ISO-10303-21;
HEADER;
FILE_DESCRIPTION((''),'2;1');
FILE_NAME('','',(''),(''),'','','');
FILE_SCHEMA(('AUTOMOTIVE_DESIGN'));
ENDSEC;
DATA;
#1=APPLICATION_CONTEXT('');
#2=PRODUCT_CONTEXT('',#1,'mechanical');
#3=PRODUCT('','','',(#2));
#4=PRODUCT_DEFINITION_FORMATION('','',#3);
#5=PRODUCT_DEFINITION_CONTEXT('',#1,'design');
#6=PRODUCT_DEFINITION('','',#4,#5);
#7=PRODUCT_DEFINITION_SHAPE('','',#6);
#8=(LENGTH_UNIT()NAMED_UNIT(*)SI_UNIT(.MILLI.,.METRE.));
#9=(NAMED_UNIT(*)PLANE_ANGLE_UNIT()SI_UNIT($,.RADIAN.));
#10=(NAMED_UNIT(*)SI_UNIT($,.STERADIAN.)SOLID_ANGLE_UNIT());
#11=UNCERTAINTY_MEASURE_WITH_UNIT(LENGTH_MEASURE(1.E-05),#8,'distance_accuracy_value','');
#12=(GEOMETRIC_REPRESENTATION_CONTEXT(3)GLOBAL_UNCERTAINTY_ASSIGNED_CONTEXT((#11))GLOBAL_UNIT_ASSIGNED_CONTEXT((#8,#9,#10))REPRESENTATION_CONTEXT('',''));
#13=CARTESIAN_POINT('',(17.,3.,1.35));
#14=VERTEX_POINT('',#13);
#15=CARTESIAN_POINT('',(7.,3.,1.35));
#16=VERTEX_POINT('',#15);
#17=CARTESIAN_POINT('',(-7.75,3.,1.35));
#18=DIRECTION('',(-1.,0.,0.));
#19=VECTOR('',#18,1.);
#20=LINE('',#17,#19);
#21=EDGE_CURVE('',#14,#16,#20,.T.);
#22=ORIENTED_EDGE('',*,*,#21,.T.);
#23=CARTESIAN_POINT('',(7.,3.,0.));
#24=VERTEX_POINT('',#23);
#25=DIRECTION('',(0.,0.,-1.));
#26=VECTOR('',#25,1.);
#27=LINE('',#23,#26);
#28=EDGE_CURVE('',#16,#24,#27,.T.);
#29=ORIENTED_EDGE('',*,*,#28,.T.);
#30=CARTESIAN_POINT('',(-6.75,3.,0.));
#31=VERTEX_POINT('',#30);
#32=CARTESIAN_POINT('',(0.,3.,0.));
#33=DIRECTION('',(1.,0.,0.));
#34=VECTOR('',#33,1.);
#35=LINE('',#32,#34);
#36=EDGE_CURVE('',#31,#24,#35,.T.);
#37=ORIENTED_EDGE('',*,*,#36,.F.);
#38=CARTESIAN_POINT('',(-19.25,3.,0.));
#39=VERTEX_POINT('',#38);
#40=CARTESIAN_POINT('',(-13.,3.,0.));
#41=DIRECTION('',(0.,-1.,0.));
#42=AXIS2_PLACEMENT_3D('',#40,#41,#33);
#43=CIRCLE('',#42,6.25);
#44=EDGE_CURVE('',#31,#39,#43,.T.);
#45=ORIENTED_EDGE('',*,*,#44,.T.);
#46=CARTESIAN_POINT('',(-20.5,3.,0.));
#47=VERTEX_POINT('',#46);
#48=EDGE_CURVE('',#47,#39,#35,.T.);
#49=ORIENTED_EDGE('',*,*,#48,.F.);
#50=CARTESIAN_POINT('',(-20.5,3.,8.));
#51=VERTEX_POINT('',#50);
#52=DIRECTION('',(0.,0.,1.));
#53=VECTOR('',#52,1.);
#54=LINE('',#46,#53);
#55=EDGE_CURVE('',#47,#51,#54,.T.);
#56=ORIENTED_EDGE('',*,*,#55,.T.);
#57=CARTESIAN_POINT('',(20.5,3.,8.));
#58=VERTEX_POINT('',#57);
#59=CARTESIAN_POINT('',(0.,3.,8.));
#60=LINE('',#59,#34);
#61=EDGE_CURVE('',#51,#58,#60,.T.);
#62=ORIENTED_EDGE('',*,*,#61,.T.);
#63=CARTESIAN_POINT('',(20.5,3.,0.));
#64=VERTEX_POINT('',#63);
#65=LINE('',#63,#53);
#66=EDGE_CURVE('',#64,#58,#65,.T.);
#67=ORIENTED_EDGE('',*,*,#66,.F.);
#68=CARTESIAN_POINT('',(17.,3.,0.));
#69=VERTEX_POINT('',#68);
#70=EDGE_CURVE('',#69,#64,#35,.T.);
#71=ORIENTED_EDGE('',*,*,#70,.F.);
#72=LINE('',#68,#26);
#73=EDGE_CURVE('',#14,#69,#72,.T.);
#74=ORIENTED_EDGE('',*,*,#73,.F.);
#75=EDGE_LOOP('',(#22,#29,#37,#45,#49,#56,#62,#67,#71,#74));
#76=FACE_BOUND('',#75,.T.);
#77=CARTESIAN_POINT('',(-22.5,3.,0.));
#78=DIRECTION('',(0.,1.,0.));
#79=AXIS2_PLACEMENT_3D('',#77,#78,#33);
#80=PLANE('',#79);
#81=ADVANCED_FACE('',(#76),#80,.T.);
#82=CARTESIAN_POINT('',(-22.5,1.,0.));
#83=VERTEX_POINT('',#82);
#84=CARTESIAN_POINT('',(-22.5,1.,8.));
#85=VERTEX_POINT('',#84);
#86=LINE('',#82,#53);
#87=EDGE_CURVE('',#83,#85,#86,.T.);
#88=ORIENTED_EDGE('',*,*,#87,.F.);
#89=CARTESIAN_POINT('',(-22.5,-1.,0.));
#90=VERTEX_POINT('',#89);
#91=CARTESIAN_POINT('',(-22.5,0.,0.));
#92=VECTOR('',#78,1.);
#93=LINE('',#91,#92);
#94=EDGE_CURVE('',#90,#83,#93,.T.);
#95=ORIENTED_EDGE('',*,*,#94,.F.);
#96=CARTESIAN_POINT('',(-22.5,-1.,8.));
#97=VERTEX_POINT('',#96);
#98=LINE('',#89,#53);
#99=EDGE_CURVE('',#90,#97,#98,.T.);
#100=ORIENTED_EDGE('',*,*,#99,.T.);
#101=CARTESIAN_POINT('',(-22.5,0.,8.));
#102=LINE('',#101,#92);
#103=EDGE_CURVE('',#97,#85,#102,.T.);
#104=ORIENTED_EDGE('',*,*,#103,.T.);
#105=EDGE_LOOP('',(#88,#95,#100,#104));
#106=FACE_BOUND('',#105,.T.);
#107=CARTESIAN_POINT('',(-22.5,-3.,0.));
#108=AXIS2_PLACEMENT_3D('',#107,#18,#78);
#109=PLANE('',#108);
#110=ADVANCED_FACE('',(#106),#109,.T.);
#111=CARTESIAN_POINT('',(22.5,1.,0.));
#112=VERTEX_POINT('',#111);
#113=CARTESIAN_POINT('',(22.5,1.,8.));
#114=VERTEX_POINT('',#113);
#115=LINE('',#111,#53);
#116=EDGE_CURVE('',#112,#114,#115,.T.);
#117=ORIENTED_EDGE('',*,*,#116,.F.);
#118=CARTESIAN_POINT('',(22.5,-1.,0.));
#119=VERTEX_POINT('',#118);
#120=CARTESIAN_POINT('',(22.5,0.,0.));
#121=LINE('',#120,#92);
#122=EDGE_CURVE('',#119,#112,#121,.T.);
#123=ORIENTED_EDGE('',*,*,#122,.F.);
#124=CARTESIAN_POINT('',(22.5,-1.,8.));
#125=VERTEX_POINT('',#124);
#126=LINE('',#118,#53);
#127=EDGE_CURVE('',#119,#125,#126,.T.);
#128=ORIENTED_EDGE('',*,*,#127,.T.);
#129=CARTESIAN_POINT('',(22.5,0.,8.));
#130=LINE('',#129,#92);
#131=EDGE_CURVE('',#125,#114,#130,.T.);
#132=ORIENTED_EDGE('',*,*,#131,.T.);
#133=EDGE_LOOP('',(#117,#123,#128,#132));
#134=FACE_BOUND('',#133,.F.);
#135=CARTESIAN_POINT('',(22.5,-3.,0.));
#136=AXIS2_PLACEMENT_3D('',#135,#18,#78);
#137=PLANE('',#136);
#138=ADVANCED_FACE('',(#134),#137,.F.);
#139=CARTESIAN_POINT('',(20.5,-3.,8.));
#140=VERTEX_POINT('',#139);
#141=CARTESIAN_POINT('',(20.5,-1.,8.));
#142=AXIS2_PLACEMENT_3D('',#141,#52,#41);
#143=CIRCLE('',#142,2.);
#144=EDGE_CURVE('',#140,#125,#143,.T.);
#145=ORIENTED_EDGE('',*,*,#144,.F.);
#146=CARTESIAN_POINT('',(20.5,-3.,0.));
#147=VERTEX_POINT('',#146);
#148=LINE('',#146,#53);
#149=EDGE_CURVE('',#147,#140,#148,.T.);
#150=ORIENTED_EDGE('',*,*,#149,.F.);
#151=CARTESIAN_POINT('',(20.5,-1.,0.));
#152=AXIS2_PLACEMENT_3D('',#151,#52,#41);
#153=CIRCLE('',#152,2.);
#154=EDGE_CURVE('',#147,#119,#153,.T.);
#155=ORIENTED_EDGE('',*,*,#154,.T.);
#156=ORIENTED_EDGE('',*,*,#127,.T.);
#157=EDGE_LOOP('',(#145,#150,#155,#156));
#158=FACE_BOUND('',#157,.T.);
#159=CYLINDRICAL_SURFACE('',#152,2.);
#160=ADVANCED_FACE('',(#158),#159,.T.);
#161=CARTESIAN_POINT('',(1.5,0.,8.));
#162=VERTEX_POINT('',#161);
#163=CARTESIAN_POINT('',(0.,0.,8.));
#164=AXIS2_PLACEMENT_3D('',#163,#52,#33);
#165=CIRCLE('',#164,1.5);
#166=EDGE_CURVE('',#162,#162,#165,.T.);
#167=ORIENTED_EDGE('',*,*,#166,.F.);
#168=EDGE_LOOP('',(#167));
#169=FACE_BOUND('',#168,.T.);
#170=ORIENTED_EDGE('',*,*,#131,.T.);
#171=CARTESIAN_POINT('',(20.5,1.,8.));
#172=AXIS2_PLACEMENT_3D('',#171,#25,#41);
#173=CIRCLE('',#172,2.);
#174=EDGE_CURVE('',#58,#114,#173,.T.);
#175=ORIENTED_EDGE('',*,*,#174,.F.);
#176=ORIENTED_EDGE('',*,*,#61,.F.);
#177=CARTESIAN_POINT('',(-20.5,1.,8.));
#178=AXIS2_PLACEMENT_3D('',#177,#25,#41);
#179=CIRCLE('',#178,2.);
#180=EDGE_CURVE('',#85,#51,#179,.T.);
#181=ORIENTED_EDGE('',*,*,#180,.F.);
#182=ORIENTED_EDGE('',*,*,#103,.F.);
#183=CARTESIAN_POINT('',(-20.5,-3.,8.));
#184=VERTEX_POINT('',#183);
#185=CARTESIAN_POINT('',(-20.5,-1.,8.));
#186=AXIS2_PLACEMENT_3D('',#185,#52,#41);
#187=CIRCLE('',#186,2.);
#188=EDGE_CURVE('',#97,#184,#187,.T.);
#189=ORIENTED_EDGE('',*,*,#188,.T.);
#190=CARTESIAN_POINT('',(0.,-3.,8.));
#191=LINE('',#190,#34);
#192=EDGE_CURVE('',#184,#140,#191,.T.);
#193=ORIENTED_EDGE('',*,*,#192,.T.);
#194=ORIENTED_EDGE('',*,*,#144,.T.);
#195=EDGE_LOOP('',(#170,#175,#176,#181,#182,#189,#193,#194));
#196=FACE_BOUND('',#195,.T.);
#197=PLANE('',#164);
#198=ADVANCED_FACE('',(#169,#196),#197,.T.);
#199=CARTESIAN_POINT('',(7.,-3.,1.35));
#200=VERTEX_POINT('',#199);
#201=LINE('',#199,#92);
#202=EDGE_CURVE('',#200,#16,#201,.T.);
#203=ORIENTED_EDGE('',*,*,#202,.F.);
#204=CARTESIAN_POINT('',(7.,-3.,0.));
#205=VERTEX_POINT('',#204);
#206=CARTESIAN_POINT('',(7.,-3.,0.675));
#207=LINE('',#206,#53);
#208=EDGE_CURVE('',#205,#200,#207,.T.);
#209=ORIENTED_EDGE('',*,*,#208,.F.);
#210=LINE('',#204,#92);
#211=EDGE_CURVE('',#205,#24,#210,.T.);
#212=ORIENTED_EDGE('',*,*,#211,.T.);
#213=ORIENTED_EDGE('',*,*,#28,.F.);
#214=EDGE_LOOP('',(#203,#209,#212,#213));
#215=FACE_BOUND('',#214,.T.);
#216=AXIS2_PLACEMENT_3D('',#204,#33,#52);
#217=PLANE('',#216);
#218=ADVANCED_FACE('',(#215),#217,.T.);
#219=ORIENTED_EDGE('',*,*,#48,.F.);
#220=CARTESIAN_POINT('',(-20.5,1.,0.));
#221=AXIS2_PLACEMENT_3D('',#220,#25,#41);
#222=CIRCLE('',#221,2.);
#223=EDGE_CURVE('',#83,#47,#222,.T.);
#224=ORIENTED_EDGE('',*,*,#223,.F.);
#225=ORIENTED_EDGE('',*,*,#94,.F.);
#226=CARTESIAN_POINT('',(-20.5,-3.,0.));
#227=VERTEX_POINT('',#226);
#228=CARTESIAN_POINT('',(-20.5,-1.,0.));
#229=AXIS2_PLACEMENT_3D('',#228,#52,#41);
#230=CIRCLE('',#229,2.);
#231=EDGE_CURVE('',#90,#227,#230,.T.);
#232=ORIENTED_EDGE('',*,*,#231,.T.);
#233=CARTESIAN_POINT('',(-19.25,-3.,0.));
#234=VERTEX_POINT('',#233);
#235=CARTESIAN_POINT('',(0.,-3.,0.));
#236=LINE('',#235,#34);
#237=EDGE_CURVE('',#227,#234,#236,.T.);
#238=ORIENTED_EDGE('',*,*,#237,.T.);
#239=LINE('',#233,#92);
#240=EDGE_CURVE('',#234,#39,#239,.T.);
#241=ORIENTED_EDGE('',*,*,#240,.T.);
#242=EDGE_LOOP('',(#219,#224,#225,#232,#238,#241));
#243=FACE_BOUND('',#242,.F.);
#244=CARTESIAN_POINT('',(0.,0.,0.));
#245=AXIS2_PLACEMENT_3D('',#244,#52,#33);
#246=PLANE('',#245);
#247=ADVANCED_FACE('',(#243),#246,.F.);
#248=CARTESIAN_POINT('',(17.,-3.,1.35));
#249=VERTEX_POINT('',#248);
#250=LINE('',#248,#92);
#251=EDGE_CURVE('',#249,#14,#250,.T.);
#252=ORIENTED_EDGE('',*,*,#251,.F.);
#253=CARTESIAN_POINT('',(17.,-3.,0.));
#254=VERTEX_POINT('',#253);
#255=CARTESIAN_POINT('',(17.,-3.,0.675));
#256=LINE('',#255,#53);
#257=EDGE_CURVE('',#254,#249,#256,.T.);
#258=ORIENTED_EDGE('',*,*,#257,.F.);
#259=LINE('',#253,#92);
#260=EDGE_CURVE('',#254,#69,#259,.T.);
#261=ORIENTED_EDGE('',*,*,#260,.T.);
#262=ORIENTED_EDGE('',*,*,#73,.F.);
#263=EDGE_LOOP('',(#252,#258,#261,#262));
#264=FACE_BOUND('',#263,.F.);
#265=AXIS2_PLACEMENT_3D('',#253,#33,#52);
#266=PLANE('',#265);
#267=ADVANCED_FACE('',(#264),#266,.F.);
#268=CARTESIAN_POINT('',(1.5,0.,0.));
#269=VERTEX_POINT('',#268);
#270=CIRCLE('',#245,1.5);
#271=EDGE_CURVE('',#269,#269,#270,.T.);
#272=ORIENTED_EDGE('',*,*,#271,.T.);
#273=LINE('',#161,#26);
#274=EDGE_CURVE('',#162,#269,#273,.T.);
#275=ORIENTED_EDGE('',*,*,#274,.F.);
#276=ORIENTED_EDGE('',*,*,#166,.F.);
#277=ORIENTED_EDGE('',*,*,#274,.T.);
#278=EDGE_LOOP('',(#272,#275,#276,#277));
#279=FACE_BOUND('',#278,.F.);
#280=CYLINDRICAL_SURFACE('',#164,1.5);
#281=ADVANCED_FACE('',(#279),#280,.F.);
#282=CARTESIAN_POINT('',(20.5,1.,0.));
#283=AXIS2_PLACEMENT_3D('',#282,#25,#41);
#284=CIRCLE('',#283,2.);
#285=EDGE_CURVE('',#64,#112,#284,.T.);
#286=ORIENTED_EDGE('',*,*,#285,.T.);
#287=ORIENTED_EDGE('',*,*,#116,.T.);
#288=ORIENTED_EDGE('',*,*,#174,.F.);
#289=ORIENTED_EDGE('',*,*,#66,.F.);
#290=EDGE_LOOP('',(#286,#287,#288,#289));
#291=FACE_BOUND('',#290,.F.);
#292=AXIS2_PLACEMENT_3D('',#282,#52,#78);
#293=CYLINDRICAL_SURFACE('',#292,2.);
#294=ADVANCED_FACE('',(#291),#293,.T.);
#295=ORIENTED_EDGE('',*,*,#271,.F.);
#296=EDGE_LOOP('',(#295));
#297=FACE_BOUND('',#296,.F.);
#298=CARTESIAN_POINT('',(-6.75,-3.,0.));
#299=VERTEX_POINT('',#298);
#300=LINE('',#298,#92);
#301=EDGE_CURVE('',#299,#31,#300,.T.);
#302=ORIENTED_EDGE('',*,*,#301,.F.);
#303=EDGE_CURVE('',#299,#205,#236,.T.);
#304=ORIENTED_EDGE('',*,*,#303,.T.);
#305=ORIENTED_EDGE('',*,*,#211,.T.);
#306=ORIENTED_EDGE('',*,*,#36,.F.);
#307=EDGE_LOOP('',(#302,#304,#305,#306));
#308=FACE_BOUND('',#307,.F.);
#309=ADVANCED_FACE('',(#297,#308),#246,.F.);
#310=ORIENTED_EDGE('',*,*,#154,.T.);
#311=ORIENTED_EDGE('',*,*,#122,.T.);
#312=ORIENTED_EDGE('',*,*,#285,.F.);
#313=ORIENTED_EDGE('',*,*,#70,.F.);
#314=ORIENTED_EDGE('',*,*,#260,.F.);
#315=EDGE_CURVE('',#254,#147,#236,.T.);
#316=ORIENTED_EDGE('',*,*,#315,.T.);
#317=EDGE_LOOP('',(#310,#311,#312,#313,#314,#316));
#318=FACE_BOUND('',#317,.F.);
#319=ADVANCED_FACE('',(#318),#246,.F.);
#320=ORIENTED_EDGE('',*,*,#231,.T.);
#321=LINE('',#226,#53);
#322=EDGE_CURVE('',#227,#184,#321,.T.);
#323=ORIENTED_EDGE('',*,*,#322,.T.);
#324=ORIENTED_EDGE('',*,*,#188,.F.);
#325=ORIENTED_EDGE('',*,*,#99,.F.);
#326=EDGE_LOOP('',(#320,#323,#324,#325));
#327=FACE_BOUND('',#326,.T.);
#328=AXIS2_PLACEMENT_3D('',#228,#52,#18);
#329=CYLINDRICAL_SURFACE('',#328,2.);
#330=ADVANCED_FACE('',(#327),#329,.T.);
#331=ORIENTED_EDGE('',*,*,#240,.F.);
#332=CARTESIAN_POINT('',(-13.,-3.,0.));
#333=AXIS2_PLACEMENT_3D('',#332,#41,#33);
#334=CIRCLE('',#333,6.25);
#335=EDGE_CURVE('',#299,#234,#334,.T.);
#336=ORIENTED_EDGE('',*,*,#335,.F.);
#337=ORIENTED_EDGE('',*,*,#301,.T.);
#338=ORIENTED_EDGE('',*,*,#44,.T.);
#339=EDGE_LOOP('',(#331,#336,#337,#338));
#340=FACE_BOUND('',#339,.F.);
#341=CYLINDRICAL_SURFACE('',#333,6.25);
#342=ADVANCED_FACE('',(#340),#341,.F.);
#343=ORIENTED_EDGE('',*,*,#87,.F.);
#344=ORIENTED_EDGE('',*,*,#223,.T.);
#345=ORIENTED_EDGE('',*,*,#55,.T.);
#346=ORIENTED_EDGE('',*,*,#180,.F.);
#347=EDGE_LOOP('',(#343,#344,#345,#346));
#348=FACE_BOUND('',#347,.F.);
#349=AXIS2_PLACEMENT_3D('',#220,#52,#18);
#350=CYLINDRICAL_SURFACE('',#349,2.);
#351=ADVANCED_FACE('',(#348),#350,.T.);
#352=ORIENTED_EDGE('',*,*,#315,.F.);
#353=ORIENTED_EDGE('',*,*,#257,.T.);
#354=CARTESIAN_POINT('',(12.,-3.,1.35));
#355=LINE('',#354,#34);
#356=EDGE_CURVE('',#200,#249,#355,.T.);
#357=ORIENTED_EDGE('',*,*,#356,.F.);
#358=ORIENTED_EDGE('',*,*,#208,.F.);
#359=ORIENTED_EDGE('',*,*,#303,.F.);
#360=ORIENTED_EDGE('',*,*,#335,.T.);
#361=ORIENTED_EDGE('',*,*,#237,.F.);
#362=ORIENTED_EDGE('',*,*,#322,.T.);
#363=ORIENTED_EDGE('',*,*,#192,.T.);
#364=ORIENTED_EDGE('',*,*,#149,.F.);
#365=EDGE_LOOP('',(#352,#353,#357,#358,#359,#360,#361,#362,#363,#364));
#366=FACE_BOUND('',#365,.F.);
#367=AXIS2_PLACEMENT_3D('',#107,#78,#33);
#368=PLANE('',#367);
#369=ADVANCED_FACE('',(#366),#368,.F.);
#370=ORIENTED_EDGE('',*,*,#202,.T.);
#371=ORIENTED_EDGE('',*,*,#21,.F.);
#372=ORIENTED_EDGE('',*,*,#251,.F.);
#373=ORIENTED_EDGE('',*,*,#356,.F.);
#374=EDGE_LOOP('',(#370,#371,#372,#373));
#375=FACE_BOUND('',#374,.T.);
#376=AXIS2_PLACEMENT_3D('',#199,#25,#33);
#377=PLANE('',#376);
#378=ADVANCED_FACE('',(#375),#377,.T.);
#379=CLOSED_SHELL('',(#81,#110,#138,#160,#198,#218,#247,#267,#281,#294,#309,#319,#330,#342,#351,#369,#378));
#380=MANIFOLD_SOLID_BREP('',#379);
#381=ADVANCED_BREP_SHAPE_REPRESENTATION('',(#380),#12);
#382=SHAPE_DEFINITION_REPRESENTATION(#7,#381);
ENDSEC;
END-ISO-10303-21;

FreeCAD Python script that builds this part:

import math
import FreeCAD as App
import Part
import Sketcher
from FreeCAD import Vector


def edges_at(feature, points):
    """Names of the edges that pass closest to the given points."""
    edges = feature.Shape.Edges
    near = lambda p: min(range(len(edges)), key=lambda i: edges[i].distToShape(Part.Vertex(*p))[0])
    return sorted({f"Edge{near(p) + 1}" for p in points})


def add_polygon(sketch, points):
    """Adds a closed chain of lines whose ends are joined by coincident constraints."""
    first, n = sketch.GeometryCount, len(points)
    for a, b in zip(points, points[1:] + points[:1]):
        sketch.addGeometry(Part.LineSegment(App.Vector(*a, 0), App.Vector(*b, 0)), False)
    for i in range(n):
        sketch.addConstraint(Sketcher.Constraint("Coincident", first + i, 2, first + (i + 1) % n, 1))

doc = App.newDocument("Part")
body = doc.addObject("PartDesign::Body", "Body")

# Sketch on XY plane
sketch1 = body.newObject("Sketcher::SketchObject", "Sketch")
sketch1.AttachmentSupport = (doc.getObject("XY_Plane"), [""])
sketch1.MapMode = "FlatFace"
add_polygon(sketch1, [(-22, 3), (-22, -3), (22, -3), (22, 3)])  # lines 0-3
sketch1.addConstraint([
    Sketcher.Constraint("Vertical", 0),
    Sketcher.Constraint("Horizontal", 1),
    Sketcher.Constraint("Vertical", 2),
    Sketcher.Constraint("Horizontal", 3),
    Sketcher.Constraint("Symmetric", 0, 2, 2, 2, -1, 1),
    Sketcher.Constraint("DistanceX", 1, 1, 1, 2, 45.0),
    Sketcher.Constraint("DistanceY", 0, 2, 0, 1, 6.0),
])
pad1 = body.newObject("PartDesign::Pad", "Pad")
pad1.Profile = sketch1
pad1.Length = 8

# Sketch on XZ plane
sketch2 = body.newObject("Sketcher::SketchObject", "Sketch001")
sketch2.AttachmentSupport = (doc.getObject("XZ_Plane"), [""])
sketch2.MapMode = "FlatFace"
sketch2.AttachmentOffset = App.Placement(Vector(0, 0, 3), App.Rotation())
sketch2.addGeometry(Part.LineSegment(Vector(-19.2, 0, 0), Vector(-6.8, 0, 0)), False)  # 0
sketch2.addGeometry(Part.ArcOfCircle(Part.Circle(Vector(-13, 0, 0), Vector(0, 0, 1), 6.2), math.radians(0), math.radians(180)), False)  # 1
add_polygon(sketch2, [(7, 1.4), (7, 0), (17, 0), (17, 1.4)])  # lines 2-5
sketch2.addConstraint([
    Sketcher.Constraint("Coincident", 0, 1, 1, 2),
    Sketcher.Constraint("Coincident", 1, 1, 0, 2),
    Sketcher.Constraint("Horizontal", 0),
    Sketcher.Constraint("Vertical", 2),
    Sketcher.Constraint("Horizontal", 3),
    Sketcher.Constraint("Vertical", 4),
    Sketcher.Constraint("Horizontal", 5),
    Sketcher.Constraint("PointOnObject", 1, 3, -1),
    Sketcher.Constraint("PointOnObject", 0, 1, -1),
    Sketcher.Constraint("PointOnObject", 2, 2, -1),
    Sketcher.Constraint("DistanceX", 3, 1, 3, 2, 10.0),
    Sketcher.Constraint("Radius", 1, 6.25),
    Sketcher.Constraint("DistanceX", 1, 3, -1, 1, 13.0),
    Sketcher.Constraint("DistanceX", -1, 1, 2, 2, 7.0),
    Sketcher.Constraint("DistanceY", 2, 2, 2, 1, 1.35),
])
pocket1 = body.newObject("PartDesign::Pocket", "Pocket")
pocket1.Profile = sketch2
pocket1.Type = "ThroughAll"

# Sketch on XY plane
sketch3 = body.newObject("Sketcher::SketchObject", "Sketch002")
sketch3.AttachmentSupport = (doc.getObject("XY_Plane"), [""])
sketch3.MapMode = "FlatFace"
sketch3.AttachmentOffset = App.Placement(Vector(0, 0, 8), App.Rotation())
sketch3.addGeometry(Part.Circle(Vector(0, 0, 0), Vector(0, 0, 1), 1.5), False)
sketch3.addConstraint([
    Sketcher.Constraint("Coincident", 0, 3, -1, 1),
    Sketcher.Constraint("Diameter", 0, 3.0),
])
pocket2 = body.newObject("PartDesign::Pocket", "Pocket001")
pocket2.Profile = sketch3
pocket2.Type = "ThroughAll"
doc.recompute()

fillet = body.newObject("PartDesign::Fillet", "Fillet")
fillet.Base = (pocket2, edges_at(pocket2, [
    (-22.5, -3, 4),
    (-22.5, 3, 4),
    (22.5, -3, 4),
    (22.5, 3, 4),
]))
fillet.Radius = 2

doc.recompute()
